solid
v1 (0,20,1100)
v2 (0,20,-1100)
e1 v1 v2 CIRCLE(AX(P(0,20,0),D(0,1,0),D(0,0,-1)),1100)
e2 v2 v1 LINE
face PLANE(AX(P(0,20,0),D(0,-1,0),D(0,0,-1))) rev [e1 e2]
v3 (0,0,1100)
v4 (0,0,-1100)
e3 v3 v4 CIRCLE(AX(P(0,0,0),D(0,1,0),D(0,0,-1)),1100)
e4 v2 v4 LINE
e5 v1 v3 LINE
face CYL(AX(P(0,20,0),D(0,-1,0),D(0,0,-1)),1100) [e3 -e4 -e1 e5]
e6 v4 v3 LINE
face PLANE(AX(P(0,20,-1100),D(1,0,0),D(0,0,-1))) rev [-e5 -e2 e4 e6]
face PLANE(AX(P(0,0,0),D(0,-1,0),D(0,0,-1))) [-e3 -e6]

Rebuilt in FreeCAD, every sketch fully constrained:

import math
import FreeCAD as App
import Part
import Sketcher
from FreeCAD import Vector

doc = App.newDocument("Part")
body = doc.addObject("PartDesign::Body", "Body")

sketch1 = doc.addObject("Sketcher::SketchObject", "Sketch")
body.addObject(sketch1)
sketch1.AttachmentSupport = (doc.XZ_Plane, [""])
sketch1.MapMode = "FlatFace"
sketch1.addGeometry(Part.LineSegment(Vector(0, -1100, 0), Vector(0, 1100, 0)), False)
sketch1.addGeometry(Part.ArcOfCircle(Part.Circle(Vector(0, 0, 0), Vector(0, 0, 1), 1100), math.radians(-90), math.radians(90)), False)
sketch1.addConstraint(Sketcher.Constraint("Coincident", 0, 1, 1, 1))
sketch1.addConstraint(Sketcher.Constraint("Coincident", 1, 2, 0, 2))
sketch1.addConstraint(Sketcher.Constraint("Vertical", 0))
sketch1.addConstraint(Sketcher.Constraint("Coincident", 1, 3, -1, 1))
sketch1.addConstraint(Sketcher.Constraint("PointOnObject", 0, 1, -2))
sketch1.addConstraint(Sketcher.Constraint("Radius", 1, 1100.0))
pad1 = doc.addObject("PartDesign::Pad", "Pad")
body.addObject(pad1)
pad1.Profile = sketch1
pad1.Length = 20
pad1.Reversed = True

doc.recompute()
